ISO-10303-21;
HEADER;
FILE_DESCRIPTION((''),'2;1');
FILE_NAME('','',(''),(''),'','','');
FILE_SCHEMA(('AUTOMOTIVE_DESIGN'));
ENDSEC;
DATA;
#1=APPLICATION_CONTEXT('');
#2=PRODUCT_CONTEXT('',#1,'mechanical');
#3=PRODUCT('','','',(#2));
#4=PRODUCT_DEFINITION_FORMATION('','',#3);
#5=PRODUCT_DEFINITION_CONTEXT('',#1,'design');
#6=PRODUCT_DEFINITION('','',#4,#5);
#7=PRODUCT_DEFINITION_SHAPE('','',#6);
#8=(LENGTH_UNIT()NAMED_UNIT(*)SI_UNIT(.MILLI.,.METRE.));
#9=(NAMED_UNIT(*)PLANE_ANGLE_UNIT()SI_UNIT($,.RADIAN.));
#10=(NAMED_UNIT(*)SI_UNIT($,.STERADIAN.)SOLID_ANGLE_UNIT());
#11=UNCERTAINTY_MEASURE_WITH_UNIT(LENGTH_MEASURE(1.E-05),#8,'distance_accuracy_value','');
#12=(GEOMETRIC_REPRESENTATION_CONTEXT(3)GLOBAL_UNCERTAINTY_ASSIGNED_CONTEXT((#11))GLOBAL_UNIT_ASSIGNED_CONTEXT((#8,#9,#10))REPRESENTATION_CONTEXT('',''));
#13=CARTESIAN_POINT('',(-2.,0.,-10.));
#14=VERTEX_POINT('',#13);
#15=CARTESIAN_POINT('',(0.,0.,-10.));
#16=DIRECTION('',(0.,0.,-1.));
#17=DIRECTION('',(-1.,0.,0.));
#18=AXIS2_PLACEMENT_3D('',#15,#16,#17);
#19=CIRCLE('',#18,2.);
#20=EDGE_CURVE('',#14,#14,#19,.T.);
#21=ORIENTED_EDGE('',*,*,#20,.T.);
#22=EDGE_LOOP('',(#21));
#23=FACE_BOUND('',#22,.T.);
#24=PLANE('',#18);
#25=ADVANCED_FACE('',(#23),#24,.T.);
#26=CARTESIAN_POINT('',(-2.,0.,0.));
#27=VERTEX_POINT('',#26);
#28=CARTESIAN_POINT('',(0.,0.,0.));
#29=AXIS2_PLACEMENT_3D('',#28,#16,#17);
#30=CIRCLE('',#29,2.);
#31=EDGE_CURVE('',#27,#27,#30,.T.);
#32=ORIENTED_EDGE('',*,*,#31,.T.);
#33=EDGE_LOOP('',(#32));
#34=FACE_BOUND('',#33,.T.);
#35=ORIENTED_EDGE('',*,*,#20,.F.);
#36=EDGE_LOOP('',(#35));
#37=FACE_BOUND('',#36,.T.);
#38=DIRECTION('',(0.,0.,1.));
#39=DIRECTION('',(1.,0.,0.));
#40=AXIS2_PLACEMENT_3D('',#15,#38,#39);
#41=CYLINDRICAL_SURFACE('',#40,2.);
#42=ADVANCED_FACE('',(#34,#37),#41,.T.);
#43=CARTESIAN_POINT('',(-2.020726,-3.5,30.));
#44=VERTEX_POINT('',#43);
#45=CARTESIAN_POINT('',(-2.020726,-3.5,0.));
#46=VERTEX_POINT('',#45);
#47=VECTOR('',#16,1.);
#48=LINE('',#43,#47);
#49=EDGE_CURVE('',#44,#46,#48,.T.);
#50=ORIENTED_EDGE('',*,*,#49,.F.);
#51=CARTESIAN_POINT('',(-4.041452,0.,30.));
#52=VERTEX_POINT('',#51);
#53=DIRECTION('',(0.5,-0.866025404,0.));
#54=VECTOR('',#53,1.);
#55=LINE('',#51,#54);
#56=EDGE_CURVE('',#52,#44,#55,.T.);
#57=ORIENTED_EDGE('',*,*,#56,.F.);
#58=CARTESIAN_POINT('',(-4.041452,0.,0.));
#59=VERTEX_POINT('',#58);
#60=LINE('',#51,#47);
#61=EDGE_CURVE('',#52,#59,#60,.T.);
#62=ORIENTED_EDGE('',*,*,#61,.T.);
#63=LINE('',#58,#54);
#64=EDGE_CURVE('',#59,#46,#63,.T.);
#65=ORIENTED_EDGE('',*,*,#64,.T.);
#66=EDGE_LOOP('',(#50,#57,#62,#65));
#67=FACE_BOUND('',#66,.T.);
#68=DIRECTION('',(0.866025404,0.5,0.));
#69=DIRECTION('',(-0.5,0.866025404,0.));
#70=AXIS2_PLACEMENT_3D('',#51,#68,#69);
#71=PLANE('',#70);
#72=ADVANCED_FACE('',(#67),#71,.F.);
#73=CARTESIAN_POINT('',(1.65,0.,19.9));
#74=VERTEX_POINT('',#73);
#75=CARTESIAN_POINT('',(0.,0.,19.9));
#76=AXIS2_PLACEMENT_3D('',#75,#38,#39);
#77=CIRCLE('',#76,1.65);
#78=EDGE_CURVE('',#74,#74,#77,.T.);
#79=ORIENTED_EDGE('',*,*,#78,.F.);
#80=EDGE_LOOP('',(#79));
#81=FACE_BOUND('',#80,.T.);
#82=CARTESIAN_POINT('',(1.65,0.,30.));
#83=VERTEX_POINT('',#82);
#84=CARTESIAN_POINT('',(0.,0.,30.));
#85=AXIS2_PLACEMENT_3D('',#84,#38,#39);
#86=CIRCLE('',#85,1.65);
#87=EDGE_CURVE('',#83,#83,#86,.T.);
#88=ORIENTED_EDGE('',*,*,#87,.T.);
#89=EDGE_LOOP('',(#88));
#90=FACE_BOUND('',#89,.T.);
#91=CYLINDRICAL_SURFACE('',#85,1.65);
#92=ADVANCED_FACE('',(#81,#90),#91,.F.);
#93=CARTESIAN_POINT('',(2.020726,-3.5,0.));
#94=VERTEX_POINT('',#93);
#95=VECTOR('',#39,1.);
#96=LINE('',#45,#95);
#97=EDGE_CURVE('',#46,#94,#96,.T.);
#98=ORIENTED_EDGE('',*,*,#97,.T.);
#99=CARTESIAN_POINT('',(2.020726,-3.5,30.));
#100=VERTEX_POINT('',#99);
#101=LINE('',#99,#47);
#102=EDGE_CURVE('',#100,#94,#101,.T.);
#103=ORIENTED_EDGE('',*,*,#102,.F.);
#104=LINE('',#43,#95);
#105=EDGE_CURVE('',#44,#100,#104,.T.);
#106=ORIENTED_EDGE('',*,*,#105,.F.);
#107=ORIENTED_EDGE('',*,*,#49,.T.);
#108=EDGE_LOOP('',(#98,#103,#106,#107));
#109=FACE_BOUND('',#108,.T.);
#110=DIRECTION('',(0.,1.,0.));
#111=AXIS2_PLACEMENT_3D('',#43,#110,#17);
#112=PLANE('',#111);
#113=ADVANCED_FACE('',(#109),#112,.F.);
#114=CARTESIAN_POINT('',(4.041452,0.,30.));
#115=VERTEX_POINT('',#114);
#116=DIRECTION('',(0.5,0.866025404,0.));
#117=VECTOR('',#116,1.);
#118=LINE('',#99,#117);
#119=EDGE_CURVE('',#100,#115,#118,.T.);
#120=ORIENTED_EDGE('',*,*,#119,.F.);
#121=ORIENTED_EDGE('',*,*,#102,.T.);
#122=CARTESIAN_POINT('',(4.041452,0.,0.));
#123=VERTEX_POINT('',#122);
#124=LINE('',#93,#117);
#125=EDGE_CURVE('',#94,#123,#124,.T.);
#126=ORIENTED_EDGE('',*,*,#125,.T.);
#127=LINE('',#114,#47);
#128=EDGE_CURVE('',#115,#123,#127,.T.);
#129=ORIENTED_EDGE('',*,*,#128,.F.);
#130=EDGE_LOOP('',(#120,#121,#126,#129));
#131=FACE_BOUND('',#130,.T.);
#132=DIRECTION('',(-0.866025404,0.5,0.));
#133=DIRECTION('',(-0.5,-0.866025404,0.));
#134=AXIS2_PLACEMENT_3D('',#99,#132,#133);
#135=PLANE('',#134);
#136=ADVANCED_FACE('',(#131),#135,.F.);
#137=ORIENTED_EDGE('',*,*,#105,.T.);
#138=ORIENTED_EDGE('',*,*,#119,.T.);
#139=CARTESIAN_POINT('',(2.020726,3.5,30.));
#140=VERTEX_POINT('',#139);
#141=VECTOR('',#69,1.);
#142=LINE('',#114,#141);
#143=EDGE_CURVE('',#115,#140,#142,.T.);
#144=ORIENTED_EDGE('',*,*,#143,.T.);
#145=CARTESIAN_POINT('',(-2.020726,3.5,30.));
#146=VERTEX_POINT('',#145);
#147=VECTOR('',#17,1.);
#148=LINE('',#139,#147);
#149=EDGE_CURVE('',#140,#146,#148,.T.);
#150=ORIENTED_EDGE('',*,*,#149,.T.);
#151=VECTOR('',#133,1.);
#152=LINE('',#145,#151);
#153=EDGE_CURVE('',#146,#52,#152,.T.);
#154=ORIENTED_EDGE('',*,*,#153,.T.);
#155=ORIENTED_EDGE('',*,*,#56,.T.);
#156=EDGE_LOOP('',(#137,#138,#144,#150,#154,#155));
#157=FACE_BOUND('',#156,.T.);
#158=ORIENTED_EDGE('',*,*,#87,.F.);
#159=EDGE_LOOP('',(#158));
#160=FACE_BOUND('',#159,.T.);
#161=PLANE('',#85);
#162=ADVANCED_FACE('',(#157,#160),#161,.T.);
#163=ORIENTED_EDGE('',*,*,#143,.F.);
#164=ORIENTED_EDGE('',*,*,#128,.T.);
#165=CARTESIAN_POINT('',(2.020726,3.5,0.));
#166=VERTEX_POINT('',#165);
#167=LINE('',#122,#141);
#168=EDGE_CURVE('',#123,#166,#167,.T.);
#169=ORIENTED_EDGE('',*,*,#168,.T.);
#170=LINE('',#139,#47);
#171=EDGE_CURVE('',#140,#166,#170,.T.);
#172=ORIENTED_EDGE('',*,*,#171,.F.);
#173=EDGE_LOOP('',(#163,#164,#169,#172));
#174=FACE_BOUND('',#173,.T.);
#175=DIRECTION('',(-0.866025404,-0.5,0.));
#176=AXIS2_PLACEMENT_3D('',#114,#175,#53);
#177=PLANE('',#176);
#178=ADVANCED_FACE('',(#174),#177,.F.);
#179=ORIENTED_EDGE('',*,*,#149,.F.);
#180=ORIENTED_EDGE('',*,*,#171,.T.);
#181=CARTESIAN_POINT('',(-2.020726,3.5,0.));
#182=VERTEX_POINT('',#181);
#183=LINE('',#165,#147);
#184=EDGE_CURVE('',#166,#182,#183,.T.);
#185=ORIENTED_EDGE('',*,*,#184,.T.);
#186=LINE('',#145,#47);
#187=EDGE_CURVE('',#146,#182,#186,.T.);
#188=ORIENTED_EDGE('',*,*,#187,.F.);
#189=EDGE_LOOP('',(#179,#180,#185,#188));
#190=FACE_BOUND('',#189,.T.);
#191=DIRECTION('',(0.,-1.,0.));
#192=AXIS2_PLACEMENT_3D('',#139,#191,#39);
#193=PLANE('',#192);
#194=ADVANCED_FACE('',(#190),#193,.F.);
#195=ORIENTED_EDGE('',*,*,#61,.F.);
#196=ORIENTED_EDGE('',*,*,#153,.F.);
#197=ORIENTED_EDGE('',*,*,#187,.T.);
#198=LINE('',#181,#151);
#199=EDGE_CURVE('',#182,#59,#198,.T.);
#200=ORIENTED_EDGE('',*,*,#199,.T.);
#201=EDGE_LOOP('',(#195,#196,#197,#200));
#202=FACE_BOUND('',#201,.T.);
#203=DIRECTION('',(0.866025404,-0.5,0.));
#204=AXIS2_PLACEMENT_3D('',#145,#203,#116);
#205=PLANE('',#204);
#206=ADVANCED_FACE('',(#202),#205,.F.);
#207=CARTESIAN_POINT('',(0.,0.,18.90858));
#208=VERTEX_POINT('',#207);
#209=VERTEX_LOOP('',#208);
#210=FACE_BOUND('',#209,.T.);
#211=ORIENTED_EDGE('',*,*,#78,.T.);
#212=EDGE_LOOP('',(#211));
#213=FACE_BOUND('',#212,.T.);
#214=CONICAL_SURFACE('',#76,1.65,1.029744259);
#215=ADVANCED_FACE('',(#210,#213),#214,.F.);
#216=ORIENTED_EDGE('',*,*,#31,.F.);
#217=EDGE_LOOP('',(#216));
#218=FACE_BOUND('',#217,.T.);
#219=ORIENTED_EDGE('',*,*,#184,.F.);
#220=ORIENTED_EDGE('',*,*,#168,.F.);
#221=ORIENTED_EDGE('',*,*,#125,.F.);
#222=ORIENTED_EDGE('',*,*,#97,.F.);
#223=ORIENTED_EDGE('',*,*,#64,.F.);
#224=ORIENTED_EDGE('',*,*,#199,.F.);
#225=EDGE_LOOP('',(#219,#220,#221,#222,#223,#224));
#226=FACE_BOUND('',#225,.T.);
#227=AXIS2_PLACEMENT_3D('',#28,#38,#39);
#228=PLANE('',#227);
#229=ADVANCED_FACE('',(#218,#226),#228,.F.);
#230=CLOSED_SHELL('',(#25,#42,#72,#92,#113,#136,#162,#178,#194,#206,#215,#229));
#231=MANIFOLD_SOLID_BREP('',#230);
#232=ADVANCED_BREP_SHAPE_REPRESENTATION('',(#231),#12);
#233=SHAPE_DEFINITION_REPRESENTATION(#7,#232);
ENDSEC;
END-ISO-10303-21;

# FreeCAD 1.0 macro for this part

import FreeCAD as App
import Part
import Sketcher
from FreeCAD import Vector
Q = App.Units.Quantity

doc = App.newDocument("Part")
params = doc.addObject("Spreadsheet::Sheet", "Params")
for row, (alias, value) in enumerate([
    ("pad1_length", "30 mm"),
    ("sketch2_diameter", "4 mm"),
    ("pad2_length", "10 mm"),
    ("sketch3_diameter", "3.3 mm"),
    ("hole_diameter", "3.3 mm"),
    ("hole_depth", "10.1 mm"),
], start=1):
    params.set(f"A{row}", alias)
    params.set(f"B{row}", "=" + value)
    params.setAlias(f"B{row}", alias)

body = doc.addObject("PartDesign::Body", "Body")

# Sketch on XY plane
sketch1 = body.newObject("Sketcher::SketchObject", "Sketch")
sketch1.AttachmentSupport = (doc.getObject("XY_Plane"), [""])
sketch1.MapMode = "FlatFace"
sketch1.addGeometry(Part.LineSegment(Vector(-2, 3.5, 0), Vector(-4, 0, 0)), False)
sketch1.addGeometry(Part.LineSegment(Vector(-4, 0, 0), Vector(-2, -3.5, 0)), False)
sketch1.addGeometry(Part.LineSegment(Vector(-2, -3.5, 0), Vector(2, -3.5, 0)), False)
sketch1.addGeometry(Part.LineSegment(Vector(2, -3.5, 0), Vector(4, 0, 0)), False)
sketch1.addGeometry(Part.LineSegment(Vector(4, 0, 0), Vector(2, 3.5, 0)), False)
sketch1.addGeometry(Part.LineSegment(Vector(2, 3.5, 0), Vector(-2, 3.5, 0)), False)
sketch1.addConstraint(Sketcher.Constraint("Coincident", 0, 2, 1, 1))
sketch1.addConstraint(Sketcher.Constraint("Coincident", 1, 2, 2, 1))
sketch1.addConstraint(Sketcher.Constraint("Coincident", 2, 2, 3, 1))
sketch1.addConstraint(Sketcher.Constraint("Coincident", 3, 2, 4, 1))
sketch1.addConstraint(Sketcher.Constraint("Coincident", 4, 2, 5, 1))
sketch1.addConstraint(Sketcher.Constraint("Coincident", 5, 2, 0, 1))
sketch1.addConstraint(Sketcher.Constraint("Horizontal", 2))
sketch1.addConstraint(Sketcher.Constraint("Horizontal", 5))
sketch1.addConstraint(Sketcher.Constraint("Symmetric", 0, 2, 3, 2, -1, 1))
sketch1.addConstraint(Sketcher.Constraint("Symmetric", 1, 2, 4, 2, -1, 1))
sketch1.addConstraint(Sketcher.Constraint("PointOnObject", 0, 2, -1))
sketch1.addConstraint(Sketcher.Constraint("Parallel", 0, 3))
sketch1.addConstraint(Sketcher.Constraint("Vertical", 2, 2, 4, 2))
sketch1.addConstraint(Sketcher.Constraint("Angle", 0, Q("-120 deg")))
sketch1.addConstraint(Sketcher.Constraint("DistanceY", 2, 2, 4, 2, Q("7 mm")))
sketch1.addConstraint(Sketcher.Constraint("DistanceX", 2, 1, 2, 2, Q("4.041452 mm")))
pad1 = body.newObject("PartDesign::Pad", "Pad")
pad1.Profile = sketch1
pad1.setExpression("Length", "Params.pad1_length")

# Sketch on XY plane
sketch2 = body.newObject("Sketcher::SketchObject", "Sketch001")
sketch2.AttachmentSupport = (doc.getObject("XY_Plane"), [""])
sketch2.MapMode = "FlatFace"
sketch2.addGeometry(Part.Circle(Vector(0, 0, 0), Vector(0, 0, 1), 2), False)
sketch2.addConstraint(Sketcher.Constraint("Coincident", 0, 3, -1, 1))
sketch2.addConstraint(Sketcher.Constraint("Diameter", 0, Q("4 mm")))
sketch2.setExpression("Constraints[1]", "Params.sketch2_diameter")
pad2 = body.newObject("PartDesign::Pad", "Pad001")
pad2.Profile = sketch2
pad2.setExpression("Length", "Params.pad2_length")
pad2.Reversed = True

# Sketch on XY plane
sketch3 = body.newObject("Sketcher::SketchObject", "Sketch002")
sketch3.AttachmentSupport = (doc.getObject("XY_Plane"), [""])
sketch3.MapMode = "FlatFace"
sketch3.AttachmentOffset = App.Placement(Vector(0, 0, 30), App.Rotation())
sketch3.addGeometry(Part.Circle(Vector(0, 0, 0), Vector(0, 0, 1), 1.6), False)
sketch3.addConstraint(Sketcher.Constraint("Coincident", 0, 3, -1, 1))
sketch3.addConstraint(Sketcher.Constraint("Diameter", 0, Q("3.3 mm")))
sketch3.setExpression("Constraints[1]", "Params.sketch3_diameter")
doc.recompute()
hole = body.newObject("PartDesign::Hole", "Hole")
hole.Profile = sketch3
hole.ThreadType = "None"
hole.setExpression("Diameter", "Params.hole_diameter")
hole.DepthType = "Dimension"
hole.setExpression("Depth", "Params.hole_depth")
hole.DrillPoint = "Angled"
hole.DrillPointAngle = 118

doc.recompute()
